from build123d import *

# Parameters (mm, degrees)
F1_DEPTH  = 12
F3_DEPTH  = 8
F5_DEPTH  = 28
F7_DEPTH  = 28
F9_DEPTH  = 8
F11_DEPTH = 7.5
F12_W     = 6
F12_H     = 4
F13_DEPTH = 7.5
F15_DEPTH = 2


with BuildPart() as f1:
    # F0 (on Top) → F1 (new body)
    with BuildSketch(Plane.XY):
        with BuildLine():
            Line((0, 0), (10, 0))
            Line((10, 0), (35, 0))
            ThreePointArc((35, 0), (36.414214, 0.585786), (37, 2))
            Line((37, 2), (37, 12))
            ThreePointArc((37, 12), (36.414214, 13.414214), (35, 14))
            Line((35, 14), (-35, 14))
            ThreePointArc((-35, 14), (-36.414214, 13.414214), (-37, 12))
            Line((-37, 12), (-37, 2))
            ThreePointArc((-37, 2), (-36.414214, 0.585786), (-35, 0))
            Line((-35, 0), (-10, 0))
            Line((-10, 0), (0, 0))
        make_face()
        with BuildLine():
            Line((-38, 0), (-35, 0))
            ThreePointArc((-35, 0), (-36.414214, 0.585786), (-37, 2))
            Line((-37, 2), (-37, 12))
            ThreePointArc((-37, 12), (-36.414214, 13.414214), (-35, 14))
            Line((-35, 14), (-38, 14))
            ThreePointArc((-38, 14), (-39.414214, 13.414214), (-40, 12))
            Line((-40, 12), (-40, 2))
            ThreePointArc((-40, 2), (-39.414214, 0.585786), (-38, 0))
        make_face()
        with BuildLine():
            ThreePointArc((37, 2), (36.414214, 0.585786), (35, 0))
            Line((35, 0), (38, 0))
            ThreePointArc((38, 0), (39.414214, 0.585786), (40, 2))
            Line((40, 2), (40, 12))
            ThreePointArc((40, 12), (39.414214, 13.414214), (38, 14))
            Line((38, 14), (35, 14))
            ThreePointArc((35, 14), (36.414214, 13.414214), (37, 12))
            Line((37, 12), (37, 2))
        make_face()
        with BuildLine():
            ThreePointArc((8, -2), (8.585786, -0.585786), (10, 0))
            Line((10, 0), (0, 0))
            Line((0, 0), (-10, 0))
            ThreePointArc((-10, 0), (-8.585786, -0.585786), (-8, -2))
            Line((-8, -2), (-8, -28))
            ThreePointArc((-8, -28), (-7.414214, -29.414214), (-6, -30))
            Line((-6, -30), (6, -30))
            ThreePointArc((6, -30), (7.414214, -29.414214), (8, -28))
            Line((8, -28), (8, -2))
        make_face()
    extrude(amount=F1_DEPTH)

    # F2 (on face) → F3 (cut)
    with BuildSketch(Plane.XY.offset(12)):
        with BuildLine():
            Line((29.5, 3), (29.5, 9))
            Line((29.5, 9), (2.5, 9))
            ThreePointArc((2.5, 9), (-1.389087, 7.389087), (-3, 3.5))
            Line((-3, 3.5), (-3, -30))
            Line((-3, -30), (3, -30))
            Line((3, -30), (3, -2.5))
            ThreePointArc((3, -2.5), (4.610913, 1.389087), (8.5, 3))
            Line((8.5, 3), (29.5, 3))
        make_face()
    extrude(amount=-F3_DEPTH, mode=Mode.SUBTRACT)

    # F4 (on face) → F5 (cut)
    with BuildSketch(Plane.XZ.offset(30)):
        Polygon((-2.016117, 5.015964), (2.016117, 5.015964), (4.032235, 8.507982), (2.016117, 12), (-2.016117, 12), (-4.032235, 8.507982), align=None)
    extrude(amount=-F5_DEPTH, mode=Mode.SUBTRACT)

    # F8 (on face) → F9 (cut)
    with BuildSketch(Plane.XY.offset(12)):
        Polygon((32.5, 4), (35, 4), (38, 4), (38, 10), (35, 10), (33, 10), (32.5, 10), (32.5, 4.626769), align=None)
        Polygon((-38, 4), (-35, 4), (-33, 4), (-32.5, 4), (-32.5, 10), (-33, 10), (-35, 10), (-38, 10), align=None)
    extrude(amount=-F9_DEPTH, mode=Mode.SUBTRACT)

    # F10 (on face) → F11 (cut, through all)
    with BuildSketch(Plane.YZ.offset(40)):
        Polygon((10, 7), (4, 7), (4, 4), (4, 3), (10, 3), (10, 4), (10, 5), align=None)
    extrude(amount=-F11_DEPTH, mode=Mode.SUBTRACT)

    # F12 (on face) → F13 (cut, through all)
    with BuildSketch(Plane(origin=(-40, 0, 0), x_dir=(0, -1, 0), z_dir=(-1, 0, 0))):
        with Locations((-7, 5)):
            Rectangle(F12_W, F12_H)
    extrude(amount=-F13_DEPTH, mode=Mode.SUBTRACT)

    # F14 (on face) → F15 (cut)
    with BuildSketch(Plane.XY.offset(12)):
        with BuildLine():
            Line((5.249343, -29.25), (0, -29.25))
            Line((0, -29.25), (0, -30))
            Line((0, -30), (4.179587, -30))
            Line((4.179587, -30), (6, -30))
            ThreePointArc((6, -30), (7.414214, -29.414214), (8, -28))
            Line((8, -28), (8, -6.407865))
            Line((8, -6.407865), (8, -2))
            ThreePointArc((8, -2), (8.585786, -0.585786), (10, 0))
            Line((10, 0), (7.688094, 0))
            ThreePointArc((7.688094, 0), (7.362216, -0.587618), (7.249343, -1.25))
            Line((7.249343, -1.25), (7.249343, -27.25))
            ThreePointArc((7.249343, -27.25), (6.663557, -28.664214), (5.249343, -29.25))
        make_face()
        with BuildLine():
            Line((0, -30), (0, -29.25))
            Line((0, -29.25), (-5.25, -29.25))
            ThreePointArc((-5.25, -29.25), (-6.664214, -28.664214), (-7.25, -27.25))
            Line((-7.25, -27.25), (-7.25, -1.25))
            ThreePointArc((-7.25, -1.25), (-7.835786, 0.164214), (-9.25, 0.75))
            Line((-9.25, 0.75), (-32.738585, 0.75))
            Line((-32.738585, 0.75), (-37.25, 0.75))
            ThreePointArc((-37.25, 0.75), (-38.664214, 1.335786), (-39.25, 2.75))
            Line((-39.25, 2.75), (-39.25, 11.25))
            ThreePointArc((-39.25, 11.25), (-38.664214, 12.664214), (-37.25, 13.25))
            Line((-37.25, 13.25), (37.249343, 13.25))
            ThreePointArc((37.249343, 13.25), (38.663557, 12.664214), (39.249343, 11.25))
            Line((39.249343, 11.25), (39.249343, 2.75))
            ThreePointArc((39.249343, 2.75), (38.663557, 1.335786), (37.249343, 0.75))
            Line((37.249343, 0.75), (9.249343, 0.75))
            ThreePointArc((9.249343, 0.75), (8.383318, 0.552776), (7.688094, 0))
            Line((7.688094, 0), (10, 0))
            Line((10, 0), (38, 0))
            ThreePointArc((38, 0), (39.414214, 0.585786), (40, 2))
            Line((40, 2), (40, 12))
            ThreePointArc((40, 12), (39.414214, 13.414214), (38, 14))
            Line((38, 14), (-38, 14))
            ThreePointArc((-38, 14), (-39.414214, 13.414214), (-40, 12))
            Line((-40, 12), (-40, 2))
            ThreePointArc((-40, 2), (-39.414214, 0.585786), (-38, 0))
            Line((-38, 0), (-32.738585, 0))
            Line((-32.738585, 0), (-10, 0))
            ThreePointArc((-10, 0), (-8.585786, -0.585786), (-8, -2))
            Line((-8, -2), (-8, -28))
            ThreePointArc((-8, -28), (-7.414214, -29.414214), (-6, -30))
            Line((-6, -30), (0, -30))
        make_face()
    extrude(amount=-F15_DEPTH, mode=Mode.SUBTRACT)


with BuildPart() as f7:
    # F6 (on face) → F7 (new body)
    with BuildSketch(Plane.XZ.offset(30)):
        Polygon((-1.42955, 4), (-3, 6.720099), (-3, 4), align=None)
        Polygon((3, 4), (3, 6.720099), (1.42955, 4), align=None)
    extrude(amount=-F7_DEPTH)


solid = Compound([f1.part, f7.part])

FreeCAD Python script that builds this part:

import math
import FreeCAD as App
import Part
import Sketcher
from FreeCAD import Vector
Q = App.Units.Quantity


def add_polygon(sketch, points):
    """Adds a closed chain of lines whose ends are joined by coincident constraints."""
    first, n = sketch.GeometryCount, len(points)
    for a, b in zip(points, points[1:] + points[:1]):
        sketch.addGeometry(Part.LineSegment(App.Vector(*a, 0), App.Vector(*b, 0)), False)
    for i in range(n):
        sketch.addConstraint(Sketcher.Constraint("Coincident", first + i, 2, first + (i + 1) % n, 1))

doc = App.newDocument("Part")
body = doc.addObject("PartDesign::Body", "Body")

sketch1 = body.newObject("Sketcher::SketchObject", "Sketch")
sketch1.AttachmentSupport = (doc.getObject("XY_Plane"), [""])
sketch1.MapMode = "FlatFace"
sketch1.addGeometry([
    Part.ArcOfCircle(Part.Circle(Vector(-38, 12, 0), Vector(0, 0, 1), 2), math.radians(90), math.radians(180)),
    Part.LineSegment(Vector(-40, 12, 0), Vector(-40, 2, 0)),
    Part.ArcOfCircle(Part.Circle(Vector(-38, 2, 0), Vector(0, 0, 1), 2), math.radians(180), math.radians(270)),
    Part.LineSegment(Vector(-38, 0, 0), Vector(-10, 0, 0)),
    Part.ArcOfCircle(Part.Circle(Vector(-10, -2, 0), Vector(0, 0, 1), 2), math.radians(0), math.radians(90)),
    Part.LineSegment(Vector(-8, -2, 0), Vector(-8, -28, 0)),
    Part.ArcOfCircle(Part.Circle(Vector(-6, -28, 0), Vector(0, 0, 1), 2), math.radians(180), math.radians(270)),
    Part.LineSegment(Vector(-6, -30, 0), Vector(6, -30, 0)),
    Part.ArcOfCircle(Part.Circle(Vector(6, -28, 0), Vector(0, 0, 1), 2), math.radians(-90), math.radians(0)),
    Part.LineSegment(Vector(8, -28, 0), Vector(8, -2, 0)),
    Part.ArcOfCircle(Part.Circle(Vector(10, -2, 0), Vector(0, 0, 1), 2), math.radians(90), math.radians(180)),
    Part.LineSegment(Vector(10, 0, 0), Vector(38, 0, 0)),
    Part.ArcOfCircle(Part.Circle(Vector(38, 2, 0), Vector(0, 0, 1), 2), math.radians(-90), math.radians(0)),
    Part.LineSegment(Vector(40, 2, 0), Vector(40, 12, 0)),
    Part.ArcOfCircle(Part.Circle(Vector(38, 12, 0), Vector(0, 0, 1), 2), math.radians(0), math.radians(90)),
    Part.LineSegment(Vector(38, 14, 0), Vector(-38, 14, 0)),
], False)
sketch1.addConstraint([
    Sketcher.Constraint("Tangent", 0, 2, 1, 1),
    Sketcher.Constraint("Tangent", 1, 2, 2, 1),
    Sketcher.Constraint("Tangent", 2, 2, 3, 1),
    Sketcher.Constraint("Tangent", 3, 2, 4, 2),
    Sketcher.Constraint("Tangent", 4, 1, 5, 1),
    Sketcher.Constraint("Tangent", 5, 2, 6, 1),
    Sketcher.Constraint("Tangent", 6, 2, 7, 1),
    Sketcher.Constraint("Tangent", 7, 2, 8, 1),
    Sketcher.Constraint("Tangent", 8, 2, 9, 1),
    Sketcher.Constraint("Tangent", 9, 2, 10, 2),
    Sketcher.Constraint("Tangent", 10, 1, 11, 1),
    Sketcher.Constraint("Tangent", 11, 2, 12, 1),
    Sketcher.Constraint("Tangent", 12, 2, 13, 1),
    Sketcher.Constraint("Tangent", 13, 2, 14, 1),
    Sketcher.Constraint("Tangent", 14, 2, 15, 1),
    Sketcher.Constraint("Tangent", 15, 2, 0, 1),
    Sketcher.Constraint("Vertical", 1),
    Sketcher.Constraint("Horizontal", 3),
    Sketcher.Constraint("Vertical", 5),
    Sketcher.Constraint("Horizontal", 7),
    Sketcher.Constraint("Vertical", 9),
    Sketcher.Constraint("Horizontal", 11),
    Sketcher.Constraint("Vertical", 13),
    Sketcher.Constraint("Horizontal", 15),
    Sketcher.Constraint("Equal", 0, 2),
    Sketcher.Constraint("Equal", 2, 4),
    Sketcher.Constraint("Equal", 4, 6),
    Sketcher.Constraint("Equal", 6, 8),
    Sketcher.Constraint("Equal", 8, 10),
    Sketcher.Constraint("Equal", 10, 12),
    Sketcher.Constraint("Equal", 12, 14),
    Sketcher.Constraint("Symmetric", 3, 2, 10, 1, -1, 1),
    Sketcher.Constraint("Symmetric", 2, 3, 12, 3, -2),
    Sketcher.Constraint("Radius", 0, Q("1.999999 mm")),
    Sketcher.Constraint("DistanceX", 3, 1, 3, 2, Q("28 mm")),
    Sketcher.Constraint("DistanceX", 7, 1, 7, 2, Q("12 mm")),
    Sketcher.Constraint("DistanceY", 1, 2, 1, 1, Q("10 mm")),
    Sketcher.Constraint("DistanceY", 5, 2, 5, 1, Q("26 mm")),
])
pad1 = body.newObject("PartDesign::Pad", "Pad")
pad1.Profile = sketch1
pad1.Length = 12

sketch2 = body.newObject("Sketcher::SketchObject", "Sketch001")
sketch2.AttachmentSupport = (doc.getObject("XY_Plane"), [""])
sketch2.MapMode = "FlatFace"
sketch2.AttachmentOffset = App.Placement(Vector(0, 0, 12), App.Rotation())
sketch2.addGeometry([
    Part.LineSegment(Vector(30, 3, 0), Vector(30, 9, 0)),
    Part.LineSegment(Vector(30, 9, 0), Vector(2, 9, 0)),
    Part.ArcOfCircle(Part.Circle(Vector(3, 3, 0), Vector(0, 0, 1), 6), math.radians(90), math.radians(180)),
    Part.LineSegment(Vector(-3, 4, 0), Vector(-3, -30, 0)),
    Part.LineSegment(Vector(-3, -30, 0), Vector(3, -30, 0)),
    Part.LineSegment(Vector(3, -30, 0), Vector(3, -2, 0)),
    Part.ArcOfCircle(Part.Circle(Vector(9, -3, 0), Vector(0, 0, 1), 6), math.radians(90), math.radians(180)),
    Part.LineSegment(Vector(8, 3, 0), Vector(30, 3, 0)),
], False)
sketch2.addConstraint([
    Sketcher.Constraint("Coincident", 0, 2, 1, 1),
    Sketcher.Constraint("Tangent", 1, 2, 2, 1),
    Sketcher.Constraint("Tangent", 2, 2, 3, 1),
    Sketcher.Constraint("Coincident", 3, 2, 4, 1),
    Sketcher.Constraint("Coincident", 4, 2, 5, 1),
    Sketcher.Constraint("Tangent", 5, 2, 6, 2),
    Sketcher.Constraint("Tangent", 6, 1, 7, 1),
    Sketcher.Constraint("Coincident", 7, 2, 0, 1),
    Sketcher.Constraint("Vertical", 0),
    Sketcher.Constraint("Horizontal", 1),
    Sketcher.Constraint("Vertical", 3),
    Sketcher.Constraint("Horizontal", 4),
    Sketcher.Constraint("Vertical", 5),
    Sketcher.Constraint("Horizontal", 7),
    Sketcher.Constraint("Equal", 2, 6),
    Sketcher.Constraint("Equal", 4, 0),
    Sketcher.Constraint("Radius", 2, Q("5.500001 mm")),
    Sketcher.Constraint("DistanceX", 1, 2, 1, 1, Q("27 mm")),
    Sketcher.Constraint("DistanceX", 4, 1, 4, 2, Q("6 mm")),
    Sketcher.Constraint("DistanceY", 3, 2, 3, 1, Q("33.5 mm")),
    Sketcher.Constraint("DistanceY", -1, 1, 0, 2, Q("9 mm")),
    Sketcher.Constraint("DistanceX", 2, 2, -1, 1, Q("3 mm")),
])
pocket1 = body.newObject("PartDesign::Pocket", "Pocket")
pocket1.Profile = sketch2
pocket1.Length = 8

sketch3 = body.newObject("Sketcher::SketchObject", "Sketch002")
sketch3.AttachmentSupport = (doc.getObject("XZ_Plane"), [""])
sketch3.MapMode = "FlatFace"
sketch3.AttachmentOffset = App.Placement(Vector(0, 0, 30), App.Rotation())
add_polygon(sketch3, [(-2, 5), (2, 5), (4, 8.5), (2, 12), (-2, 12), (-4, 8.5)])
sketch3.addConstraint([
    Sketcher.Constraint("Horizontal", 0),
    Sketcher.Constraint("Horizontal", 3),
    Sketcher.Constraint("Symmetric", 1, 2, 4, 2, -2),
    Sketcher.Constraint("Parallel", 1, 4),
    Sketcher.Constraint("Parallel", 2, 5),
    Sketcher.Constraint("Vertical", 0, 2, 2, 2),
    Sketcher.Constraint("Vertical", 3, 2, 5, 2),
    Sketcher.Constraint("Angle", 1, Q("59.999994 deg")),
    Sketcher.Constraint("DistanceY", -1, 1, 2, 2, Q("12 mm")),
    Sketcher.Constraint("DistanceX", 0, 1, 0, 2, Q("4.032234 mm")),
    Sketcher.Constraint("DistanceX", 0, 2, 1, 2, Q("2.016118 mm")),
])
pocket2 = body.newObject("PartDesign::Pocket", "Pocket001")
pocket2.Profile = sketch3
pocket2.Length = 28

sketch4 = body.newObject("Sketcher::SketchObject", "Sketch003")
sketch4.AttachmentSupport = (doc.getObject("XY_Plane"), [""])
sketch4.MapMode = "FlatFace"
sketch4.AttachmentOffset = App.Placement(Vector(0, 0, 12), App.Rotation())
add_polygon(sketch4, [(32, 4), (38, 4), (38, 10), (32, 10)])
add_polygon(sketch4, [(-38, 4), (-32, 4), (-32, 10), (-38, 10)])
sketch4.addConstraint([
    Sketcher.Constraint("Horizontal", 0),
    Sketcher.Constraint("Vertical", 1),
    Sketcher.Constraint("Horizontal", 2),
    Sketcher.Constraint("Vertical", 3),
    Sketcher.Constraint("Horizontal", 4),
    Sketcher.Constraint("Vertical", 5),
    Sketcher.Constraint("Horizontal", 6),
    Sketcher.Constraint("Vertical", 7),
    Sketcher.Constraint("Symmetric", 3, 2, 4, 2, -2),
    Sketcher.Constraint("Symmetric", 1, 2, 6, 2, -2),
    Sketcher.Constraint("DistanceY", 1, 1, 1, 2, Q("6 mm")),
    Sketcher.Constraint("DistanceX", 0, 1, 0, 2, Q("5.5 mm")),
    Sketcher.Constraint("DistanceX", -1, 1, 0, 2, Q("38 mm")),
    Sketcher.Constraint("DistanceY", -1, 1, 0, 2, Q("4 mm")),
])
pocket3 = body.newObject("PartDesign::Pocket", "Pocket002")
pocket3.Profile = sketch4
pocket3.Length = 8

sketch5 = body.newObject("Sketcher::SketchObject", "Sketch004")
sketch5.AttachmentSupport = (doc.getObject("YZ_Plane"), [""])
sketch5.MapMode = "FlatFace"
sketch5.AttachmentOffset = App.Placement(Vector(0, 0, 40), App.Rotation())
add_polygon(sketch5, [(10, 7), (4, 7), (4, 3), (10, 3)])
sketch5.addConstraint([
    Sketcher.Constraint("Horizontal", 0),
    Sketcher.Constraint("Vertical", 1),
    Sketcher.Constraint("Horizontal", 2),
    Sketcher.Constraint("Vertical", 3),
    Sketcher.Constraint("DistanceX", 0, 2, 0, 1, Q("6 mm")),
    Sketcher.Constraint("DistanceY", 1, 2, 1, 1, Q("4 mm")),
    Sketcher.Constraint("DistanceX", -1, 1, 0, 2, Q("4 mm")),
    Sketcher.Constraint("DistanceY", -1, 1, 0, 2, Q("7 mm")),
])
pocket4 = body.newObject("PartDesign::Pocket", "Pocket003")
pocket4.Profile = sketch5
pocket4.Length = 7.5

sketch6 = body.newObject("Sketcher::SketchObject", "Sketch005")
sketch6.AttachmentSupport = (doc.getObject("YZ_Plane"), [""])
sketch6.MapMode = "FlatFace"
sketch6.AttachmentOffset = App.Placement(Vector(0, 0, -40), App.Rotation())
add_polygon(sketch6, [(10, 7), (10, 3), (4, 3), (4, 7)])
sketch6.addConstraint([
    Sketcher.Constraint("Vertical", 0),
    Sketcher.Constraint("Horizontal", 1),
    Sketcher.Constraint("Vertical", 2),
    Sketcher.Constraint("Horizontal", 3),
    Sketcher.Constraint("DistanceX", 1, 2, 1, 1, Q("6 mm")),
    Sketcher.Constraint("DistanceY", 0, 2, 0, 1, Q("4 mm")),
    Sketcher.Constraint("DistanceX", -1, 1, 0, 2, Q("10 mm")),
    Sketcher.Constraint("DistanceY", -1, 1, 0, 2, Q("3 mm")),
])
pocket5 = body.newObject("PartDesign::Pocket", "Pocket004")
pocket5.Profile = sketch6
pocket5.Length = 7.5
pocket5.Reversed = True

sketch7 = body.newObject("Sketcher::SketchObject", "Sketch006")
sketch7.AttachmentSupport = (doc.getObject("XY_Plane"), [""])
sketch7.MapMode = "FlatFace"
sketch7.AttachmentOffset = App.Placement(Vector(0, 0, 12), App.Rotation())
sketch7.addGeometry([
    Part.ArcOfCircle(Part.Circle(Vector(6, -28, 0), Vector(0, 0, 1), 2), math.radians(-90), math.radians(0)),
    Part.LineSegment(Vector(8, -28, 0), Vector(8, -2, 0)),
    Part.ArcOfCircle(Part.Circle(Vector(10, -2, 0), Vector(0, 0, 1), 2), math.radians(90), math.radians(180)),
    Part.LineSegment(Vector(10, 0, 0), Vector(38, 0, 0)),
    Part.ArcOfCircle(Part.Circle(Vector(38, 2, 0), Vector(0, 0, 1), 2), math.radians(-90), math.radians(0)),
    Part.LineSegment(Vector(40, 2, 0), Vector(40, 12, 0)),
    Part.ArcOfCircle(Part.Circle(Vector(38, 12, 0), Vector(0, 0, 1), 2), math.radians(0), math.radians(90)),
    Part.LineSegment(Vector(38, 14, 0), Vector(-38, 14, 0)),
    Part.ArcOfCircle(Part.Circle(Vector(-38, 12, 0), Vector(0, 0, 1), 2), math.radians(90), math.radians(180)),
    Part.LineSegment(Vector(-40, 12, 0), Vector(-40, 2, 0)),
    Part.ArcOfCircle(Part.Circle(Vector(-38, 2, 0), Vector(0, 0, 1), 2), math.radians(180), math.radians(270)),
    Part.LineSegment(Vector(-38, 0, 0), Vector(-10, 0, 0)),
    Part.ArcOfCircle(Part.Circle(Vector(-10, -2, 0), Vector(0, 0, 1), 2), math.radians(0), math.radians(90)),
    Part.LineSegment(Vector(-8, -2, 0), Vector(-8, -28, 0)),
    Part.ArcOfCircle(Part.Circle(Vector(-6, -28, 0), Vector(0, 0, 1), 2), math.radians(180), math.radians(270)),
    Part.LineSegment(Vector(-6, -30, 0), Vector(6, -30, 0)),
    Part.LineSegment(Vector(5.2, -29.2, 0), Vector(-5.2, -29.2, 0)),
    Part.ArcOfCircle(Part.Circle(Vector(-5.3, -27.3, 0), Vector(0, 0, 1), 2), math.radians(180), math.radians(270)),
    Part.LineSegment(Vector(-7.2, -27.2, 0), Vector(-7.2, -1.2, 0)),
    Part.ArcOfCircle(Part.Circle(Vector(-9.2, -1.2, 0), Vector(0, 0, 1), 2), math.radians(0), math.radians(90)),
    Part.LineSegment(Vector(-9.2, 0.8, 0), Vector(-37.2, 0.8, 0)),
    Part.ArcOfCircle(Part.Circle(Vector(-37.3, 2.7, 0), Vector(0, 0, 1), 2), math.radians(180), math.radians(270)),
    Part.LineSegment(Vector(-39.2, 2.8, 0), Vector(-39.2, 11.2, 0)),
    Part.ArcOfCircle(Part.Circle(Vector(-37.3, 11.3, 0), Vector(0, 0, 1), 2), math.radians(90), math.radians(180)),
    Part.LineSegment(Vector(-37.2, 13.2, 0), Vector(37.2, 13.2, 0)),
    Part.ArcOfCircle(Part.Circle(Vector(37.2, 11.3, 0), Vector(0, 0, 1), 2), math.radians(0), math.radians(90)),
    Part.LineSegment(Vector(39.2, 11.2, 0), Vector(39.2, 2.8, 0)),
    Part.ArcOfCircle(Part.Circle(Vector(37.2, 2.7, 0), Vector(0, 0, 1), 2), math.radians(-90), math.radians(0)),
    Part.LineSegment(Vector(37.2, 0.8, 0), Vector(9.2, 0.8, 0)),
    Part.ArcOfCircle(Part.Circle(Vector(9.2, -1.2, 0), Vector(0, 0, 1), 2), math.radians(90), math.radians(141)),
    Part.ArcOfCircle(Part.Circle(Vector(9.2, -1.3, 0), Vector(0, 0, 1), 2), math.radians(141), math.radians(180)),
    Part.LineSegment(Vector(7.2, -1.2, 0), Vector(7.2, -27.2, 0)),
    Part.ArcOfCircle(Part.Circle(Vector(5.2, -27.3, 0), Vector(0, 0, 1), 2), math.radians(-90), math.radians(0)),
], False)
sketch7.addConstraint([
    Sketcher.Constraint("Tangent", 0, 2, 1, 1),
    Sketcher.Constraint("Tangent", 1, 2, 2, 2),
    Sketcher.Constraint("Tangent", 2, 1, 3, 1),
    Sketcher.Constraint("Tangent", 3, 2, 4, 1),
    Sketcher.Constraint("Tangent", 4, 2, 5, 1),
    Sketcher.Constraint("Tangent", 5, 2, 6, 1),
    Sketcher.Constraint("Tangent", 6, 2, 7, 1),
    Sketcher.Constraint("Tangent", 7, 2, 8, 1),
    Sketcher.Constraint("Tangent", 8, 2, 9, 1),
    Sketcher.Constraint("Tangent", 9, 2, 10, 1),
    Sketcher.Constraint("Tangent", 10, 2, 11, 1),
    Sketcher.Constraint("Tangent", 11, 2, 12, 2),
    Sketcher.Constraint("Tangent", 12, 1, 13, 1),
    Sketcher.Constraint("Tangent", 13, 2, 14, 1),
    Sketcher.Constraint("Tangent", 14, 2, 15, 1),
    Sketcher.Constraint("Tangent", 15, 2, 0, 1),
    Sketcher.Constraint("Tangent", 16, 2, 17, 2),
    Sketcher.Constraint("Tangent", 17, 1, 18, 1),
    Sketcher.Constraint("Tangent", 18, 2, 19, 1),
    Sketcher.Constraint("Tangent", 19, 2, 20, 1),
    Sketcher.Constraint("Tangent", 20, 2, 21, 2),
    Sketcher.Constraint("Tangent", 21, 1, 22, 1),
    Sketcher.Constraint("Tangent", 22, 2, 23, 2),
    Sketcher.Constraint("Tangent", 23, 1, 24, 1),
    Sketcher.Constraint("Tangent", 24, 2, 25, 2),
    Sketcher.Constraint("Tangent", 25, 1, 26, 1),
    Sketcher.Constraint("Tangent", 26, 2, 27, 2),
    Sketcher.Constraint("Tangent", 27, 1, 28, 1),
    Sketcher.Constraint("Tangent", 28, 2, 29, 1),
    Sketcher.Constraint("Tangent", 29, 2, 30, 1),
    Sketcher.Constraint("Tangent", 30, 2, 31, 1),
    Sketcher.Constraint("Tangent", 31, 2, 32, 2),
    Sketcher.Constraint("Tangent", 32, 1, 16, 1),
    Sketcher.Constraint("Vertical", 1),
    Sketcher.Constraint("Horizontal", 3),
    Sketcher.Constraint("Vertical", 5),
    Sketcher.Constraint("Horizontal", 7),
    Sketcher.Constraint("Vertical", 9),
    Sketcher.Constraint("Horizontal", 11),
    Sketcher.Constraint("Vertical", 13),
    Sketcher.Constraint("Horizontal", 15),
    Sketcher.Constraint("Horizontal", 16),
    Sketcher.Constraint("Vertical", 18),
    Sketcher.Constraint("Horizontal", 20),
    Sketcher.Constraint("Vertical", 22),
    Sketcher.Constraint("Horizontal", 24),
    Sketcher.Constraint("Vertical", 26),
    Sketcher.Constraint("Horizontal", 28),
    Sketcher.Constraint("Vertical", 31),
    Sketcher.Constraint("Equal", 0, 2),
    Sketcher.Constraint("Equal", 2, 4),
    Sketcher.Constraint("Equal", 4, 6),
    Sketcher.Constraint("Equal", 6, 8),
    Sketcher.Constraint("Equal", 8, 10),
    Sketcher.Constraint("Equal", 10, 12),
    Sketcher.Constraint("Equal", 12, 14),
    Sketcher.Constraint("Equal", 14, 17),
    Sketcher.Constraint("Equal", 17, 19),
    Sketcher.Constraint("Equal", 19, 21),
    Sketcher.Constraint("Equal", 21, 23),
    Sketcher.Constraint("Equal", 23, 25),
    Sketcher.Constraint("Equal", 25, 27),
    Sketcher.Constraint("Equal", 27, 29),
    Sketcher.Constraint("Equal", 29, 32),
    Sketcher.Constraint("Symmetric", 3, 2, 10, 2, -1, 1),
    Sketcher.Constraint("Symmetric", 2, 3, 12, 3, -2),
    Sketcher.Constraint("PointOnObject", 29, 2, -1),
    Sketcher.Constraint("Horizontal", 21, 3, 27, 3),
    Sketcher.Constraint("Horizontal", 18, 2, 30, 2),
    Sketcher.Constraint("Equal", 11, 20),
    Sketcher.Constraint("Equal", 20, 28),
    Sketcher.Constraint("Equal", 13, 18),
    Sketcher.Constraint("Radius", 0, Q("1.999999 mm")),
    Sketcher.Constraint("DistanceX", 3, 1, 3, 2, Q("28 mm")),
    Sketcher.Constraint("DistanceX", 7, 2, 7, 1, Q("76 mm")),
    Sketcher.Constraint("DistanceY", 1, 1, 1, 2, Q("26 mm")),
    Sketcher.Constraint("DistanceY", 5, 1, 5, 2, Q("10 mm")),
    Sketcher.Constraint("DistanceY", 22, 1, 22, 2, Q("8.5 mm")),
    Sketcher.Constraint("DistanceX", 17, 3, -1, 1, Q("5.250001 mm")),
    Sketcher.Constraint("DistanceY", 17, 3, -1, 1, Q("27.250001 mm")),
    Sketcher.Constraint("DistanceX", 16, 2, 16, 1, Q("10.499343 mm")),
])
pocket6 = body.newObject("PartDesign::Pocket", "Pocket005")
pocket6.Profile = sketch7
pocket6.Length = 2
body2 = doc.addObject("PartDesign::Body", "Body001")
body2.AllowCompound = True

sketch8 = body2.newObject("Sketcher::SketchObject", "Sketch007")
sketch8.AttachmentSupport = (doc.getObject("XZ_Plane001"), [""])
sketch8.MapMode = "FlatFace"
sketch8.AttachmentOffset = App.Placement(Vector(0, 0, 30), App.Rotation())
add_polygon(sketch8, [(-1.4, 4), (-3, 6.7), (-3, 4)])
add_polygon(sketch8, [(3, 4), (3, 6.7), (1.4, 4)])
sketch8.addConstraint([
    Sketcher.Constraint("Vertical", 1),
    Sketcher.Constraint("Horizontal", 2),
    Sketcher.Constraint("Vertical", 3),
    Sketcher.Constraint("Horizontal", 5),
    Sketcher.Constraint("Symmetric", 0, 2, 3, 2, -2),
    Sketcher.Constraint("Symmetric", 2, 2, 4, 2, -2),
    Sketcher.Constraint("Angle", 0, Q("120.000002 deg")),
    Sketcher.Constraint("DistanceX", 0, 2, -1, 1, Q("3 mm")),
    Sketcher.Constraint("DistanceY", -1, 1, 1, 2, Q("4 mm")),
    Sketcher.Constraint("DistanceY", 1, 2, 1, 1, Q("2.720099 mm")),
])
pad2 = body2.newObject("PartDesign::Pad", "Pad001")
pad2.Profile = sketch8
pad2.Length = 28
pad2.Reversed = True

doc.recompute()
